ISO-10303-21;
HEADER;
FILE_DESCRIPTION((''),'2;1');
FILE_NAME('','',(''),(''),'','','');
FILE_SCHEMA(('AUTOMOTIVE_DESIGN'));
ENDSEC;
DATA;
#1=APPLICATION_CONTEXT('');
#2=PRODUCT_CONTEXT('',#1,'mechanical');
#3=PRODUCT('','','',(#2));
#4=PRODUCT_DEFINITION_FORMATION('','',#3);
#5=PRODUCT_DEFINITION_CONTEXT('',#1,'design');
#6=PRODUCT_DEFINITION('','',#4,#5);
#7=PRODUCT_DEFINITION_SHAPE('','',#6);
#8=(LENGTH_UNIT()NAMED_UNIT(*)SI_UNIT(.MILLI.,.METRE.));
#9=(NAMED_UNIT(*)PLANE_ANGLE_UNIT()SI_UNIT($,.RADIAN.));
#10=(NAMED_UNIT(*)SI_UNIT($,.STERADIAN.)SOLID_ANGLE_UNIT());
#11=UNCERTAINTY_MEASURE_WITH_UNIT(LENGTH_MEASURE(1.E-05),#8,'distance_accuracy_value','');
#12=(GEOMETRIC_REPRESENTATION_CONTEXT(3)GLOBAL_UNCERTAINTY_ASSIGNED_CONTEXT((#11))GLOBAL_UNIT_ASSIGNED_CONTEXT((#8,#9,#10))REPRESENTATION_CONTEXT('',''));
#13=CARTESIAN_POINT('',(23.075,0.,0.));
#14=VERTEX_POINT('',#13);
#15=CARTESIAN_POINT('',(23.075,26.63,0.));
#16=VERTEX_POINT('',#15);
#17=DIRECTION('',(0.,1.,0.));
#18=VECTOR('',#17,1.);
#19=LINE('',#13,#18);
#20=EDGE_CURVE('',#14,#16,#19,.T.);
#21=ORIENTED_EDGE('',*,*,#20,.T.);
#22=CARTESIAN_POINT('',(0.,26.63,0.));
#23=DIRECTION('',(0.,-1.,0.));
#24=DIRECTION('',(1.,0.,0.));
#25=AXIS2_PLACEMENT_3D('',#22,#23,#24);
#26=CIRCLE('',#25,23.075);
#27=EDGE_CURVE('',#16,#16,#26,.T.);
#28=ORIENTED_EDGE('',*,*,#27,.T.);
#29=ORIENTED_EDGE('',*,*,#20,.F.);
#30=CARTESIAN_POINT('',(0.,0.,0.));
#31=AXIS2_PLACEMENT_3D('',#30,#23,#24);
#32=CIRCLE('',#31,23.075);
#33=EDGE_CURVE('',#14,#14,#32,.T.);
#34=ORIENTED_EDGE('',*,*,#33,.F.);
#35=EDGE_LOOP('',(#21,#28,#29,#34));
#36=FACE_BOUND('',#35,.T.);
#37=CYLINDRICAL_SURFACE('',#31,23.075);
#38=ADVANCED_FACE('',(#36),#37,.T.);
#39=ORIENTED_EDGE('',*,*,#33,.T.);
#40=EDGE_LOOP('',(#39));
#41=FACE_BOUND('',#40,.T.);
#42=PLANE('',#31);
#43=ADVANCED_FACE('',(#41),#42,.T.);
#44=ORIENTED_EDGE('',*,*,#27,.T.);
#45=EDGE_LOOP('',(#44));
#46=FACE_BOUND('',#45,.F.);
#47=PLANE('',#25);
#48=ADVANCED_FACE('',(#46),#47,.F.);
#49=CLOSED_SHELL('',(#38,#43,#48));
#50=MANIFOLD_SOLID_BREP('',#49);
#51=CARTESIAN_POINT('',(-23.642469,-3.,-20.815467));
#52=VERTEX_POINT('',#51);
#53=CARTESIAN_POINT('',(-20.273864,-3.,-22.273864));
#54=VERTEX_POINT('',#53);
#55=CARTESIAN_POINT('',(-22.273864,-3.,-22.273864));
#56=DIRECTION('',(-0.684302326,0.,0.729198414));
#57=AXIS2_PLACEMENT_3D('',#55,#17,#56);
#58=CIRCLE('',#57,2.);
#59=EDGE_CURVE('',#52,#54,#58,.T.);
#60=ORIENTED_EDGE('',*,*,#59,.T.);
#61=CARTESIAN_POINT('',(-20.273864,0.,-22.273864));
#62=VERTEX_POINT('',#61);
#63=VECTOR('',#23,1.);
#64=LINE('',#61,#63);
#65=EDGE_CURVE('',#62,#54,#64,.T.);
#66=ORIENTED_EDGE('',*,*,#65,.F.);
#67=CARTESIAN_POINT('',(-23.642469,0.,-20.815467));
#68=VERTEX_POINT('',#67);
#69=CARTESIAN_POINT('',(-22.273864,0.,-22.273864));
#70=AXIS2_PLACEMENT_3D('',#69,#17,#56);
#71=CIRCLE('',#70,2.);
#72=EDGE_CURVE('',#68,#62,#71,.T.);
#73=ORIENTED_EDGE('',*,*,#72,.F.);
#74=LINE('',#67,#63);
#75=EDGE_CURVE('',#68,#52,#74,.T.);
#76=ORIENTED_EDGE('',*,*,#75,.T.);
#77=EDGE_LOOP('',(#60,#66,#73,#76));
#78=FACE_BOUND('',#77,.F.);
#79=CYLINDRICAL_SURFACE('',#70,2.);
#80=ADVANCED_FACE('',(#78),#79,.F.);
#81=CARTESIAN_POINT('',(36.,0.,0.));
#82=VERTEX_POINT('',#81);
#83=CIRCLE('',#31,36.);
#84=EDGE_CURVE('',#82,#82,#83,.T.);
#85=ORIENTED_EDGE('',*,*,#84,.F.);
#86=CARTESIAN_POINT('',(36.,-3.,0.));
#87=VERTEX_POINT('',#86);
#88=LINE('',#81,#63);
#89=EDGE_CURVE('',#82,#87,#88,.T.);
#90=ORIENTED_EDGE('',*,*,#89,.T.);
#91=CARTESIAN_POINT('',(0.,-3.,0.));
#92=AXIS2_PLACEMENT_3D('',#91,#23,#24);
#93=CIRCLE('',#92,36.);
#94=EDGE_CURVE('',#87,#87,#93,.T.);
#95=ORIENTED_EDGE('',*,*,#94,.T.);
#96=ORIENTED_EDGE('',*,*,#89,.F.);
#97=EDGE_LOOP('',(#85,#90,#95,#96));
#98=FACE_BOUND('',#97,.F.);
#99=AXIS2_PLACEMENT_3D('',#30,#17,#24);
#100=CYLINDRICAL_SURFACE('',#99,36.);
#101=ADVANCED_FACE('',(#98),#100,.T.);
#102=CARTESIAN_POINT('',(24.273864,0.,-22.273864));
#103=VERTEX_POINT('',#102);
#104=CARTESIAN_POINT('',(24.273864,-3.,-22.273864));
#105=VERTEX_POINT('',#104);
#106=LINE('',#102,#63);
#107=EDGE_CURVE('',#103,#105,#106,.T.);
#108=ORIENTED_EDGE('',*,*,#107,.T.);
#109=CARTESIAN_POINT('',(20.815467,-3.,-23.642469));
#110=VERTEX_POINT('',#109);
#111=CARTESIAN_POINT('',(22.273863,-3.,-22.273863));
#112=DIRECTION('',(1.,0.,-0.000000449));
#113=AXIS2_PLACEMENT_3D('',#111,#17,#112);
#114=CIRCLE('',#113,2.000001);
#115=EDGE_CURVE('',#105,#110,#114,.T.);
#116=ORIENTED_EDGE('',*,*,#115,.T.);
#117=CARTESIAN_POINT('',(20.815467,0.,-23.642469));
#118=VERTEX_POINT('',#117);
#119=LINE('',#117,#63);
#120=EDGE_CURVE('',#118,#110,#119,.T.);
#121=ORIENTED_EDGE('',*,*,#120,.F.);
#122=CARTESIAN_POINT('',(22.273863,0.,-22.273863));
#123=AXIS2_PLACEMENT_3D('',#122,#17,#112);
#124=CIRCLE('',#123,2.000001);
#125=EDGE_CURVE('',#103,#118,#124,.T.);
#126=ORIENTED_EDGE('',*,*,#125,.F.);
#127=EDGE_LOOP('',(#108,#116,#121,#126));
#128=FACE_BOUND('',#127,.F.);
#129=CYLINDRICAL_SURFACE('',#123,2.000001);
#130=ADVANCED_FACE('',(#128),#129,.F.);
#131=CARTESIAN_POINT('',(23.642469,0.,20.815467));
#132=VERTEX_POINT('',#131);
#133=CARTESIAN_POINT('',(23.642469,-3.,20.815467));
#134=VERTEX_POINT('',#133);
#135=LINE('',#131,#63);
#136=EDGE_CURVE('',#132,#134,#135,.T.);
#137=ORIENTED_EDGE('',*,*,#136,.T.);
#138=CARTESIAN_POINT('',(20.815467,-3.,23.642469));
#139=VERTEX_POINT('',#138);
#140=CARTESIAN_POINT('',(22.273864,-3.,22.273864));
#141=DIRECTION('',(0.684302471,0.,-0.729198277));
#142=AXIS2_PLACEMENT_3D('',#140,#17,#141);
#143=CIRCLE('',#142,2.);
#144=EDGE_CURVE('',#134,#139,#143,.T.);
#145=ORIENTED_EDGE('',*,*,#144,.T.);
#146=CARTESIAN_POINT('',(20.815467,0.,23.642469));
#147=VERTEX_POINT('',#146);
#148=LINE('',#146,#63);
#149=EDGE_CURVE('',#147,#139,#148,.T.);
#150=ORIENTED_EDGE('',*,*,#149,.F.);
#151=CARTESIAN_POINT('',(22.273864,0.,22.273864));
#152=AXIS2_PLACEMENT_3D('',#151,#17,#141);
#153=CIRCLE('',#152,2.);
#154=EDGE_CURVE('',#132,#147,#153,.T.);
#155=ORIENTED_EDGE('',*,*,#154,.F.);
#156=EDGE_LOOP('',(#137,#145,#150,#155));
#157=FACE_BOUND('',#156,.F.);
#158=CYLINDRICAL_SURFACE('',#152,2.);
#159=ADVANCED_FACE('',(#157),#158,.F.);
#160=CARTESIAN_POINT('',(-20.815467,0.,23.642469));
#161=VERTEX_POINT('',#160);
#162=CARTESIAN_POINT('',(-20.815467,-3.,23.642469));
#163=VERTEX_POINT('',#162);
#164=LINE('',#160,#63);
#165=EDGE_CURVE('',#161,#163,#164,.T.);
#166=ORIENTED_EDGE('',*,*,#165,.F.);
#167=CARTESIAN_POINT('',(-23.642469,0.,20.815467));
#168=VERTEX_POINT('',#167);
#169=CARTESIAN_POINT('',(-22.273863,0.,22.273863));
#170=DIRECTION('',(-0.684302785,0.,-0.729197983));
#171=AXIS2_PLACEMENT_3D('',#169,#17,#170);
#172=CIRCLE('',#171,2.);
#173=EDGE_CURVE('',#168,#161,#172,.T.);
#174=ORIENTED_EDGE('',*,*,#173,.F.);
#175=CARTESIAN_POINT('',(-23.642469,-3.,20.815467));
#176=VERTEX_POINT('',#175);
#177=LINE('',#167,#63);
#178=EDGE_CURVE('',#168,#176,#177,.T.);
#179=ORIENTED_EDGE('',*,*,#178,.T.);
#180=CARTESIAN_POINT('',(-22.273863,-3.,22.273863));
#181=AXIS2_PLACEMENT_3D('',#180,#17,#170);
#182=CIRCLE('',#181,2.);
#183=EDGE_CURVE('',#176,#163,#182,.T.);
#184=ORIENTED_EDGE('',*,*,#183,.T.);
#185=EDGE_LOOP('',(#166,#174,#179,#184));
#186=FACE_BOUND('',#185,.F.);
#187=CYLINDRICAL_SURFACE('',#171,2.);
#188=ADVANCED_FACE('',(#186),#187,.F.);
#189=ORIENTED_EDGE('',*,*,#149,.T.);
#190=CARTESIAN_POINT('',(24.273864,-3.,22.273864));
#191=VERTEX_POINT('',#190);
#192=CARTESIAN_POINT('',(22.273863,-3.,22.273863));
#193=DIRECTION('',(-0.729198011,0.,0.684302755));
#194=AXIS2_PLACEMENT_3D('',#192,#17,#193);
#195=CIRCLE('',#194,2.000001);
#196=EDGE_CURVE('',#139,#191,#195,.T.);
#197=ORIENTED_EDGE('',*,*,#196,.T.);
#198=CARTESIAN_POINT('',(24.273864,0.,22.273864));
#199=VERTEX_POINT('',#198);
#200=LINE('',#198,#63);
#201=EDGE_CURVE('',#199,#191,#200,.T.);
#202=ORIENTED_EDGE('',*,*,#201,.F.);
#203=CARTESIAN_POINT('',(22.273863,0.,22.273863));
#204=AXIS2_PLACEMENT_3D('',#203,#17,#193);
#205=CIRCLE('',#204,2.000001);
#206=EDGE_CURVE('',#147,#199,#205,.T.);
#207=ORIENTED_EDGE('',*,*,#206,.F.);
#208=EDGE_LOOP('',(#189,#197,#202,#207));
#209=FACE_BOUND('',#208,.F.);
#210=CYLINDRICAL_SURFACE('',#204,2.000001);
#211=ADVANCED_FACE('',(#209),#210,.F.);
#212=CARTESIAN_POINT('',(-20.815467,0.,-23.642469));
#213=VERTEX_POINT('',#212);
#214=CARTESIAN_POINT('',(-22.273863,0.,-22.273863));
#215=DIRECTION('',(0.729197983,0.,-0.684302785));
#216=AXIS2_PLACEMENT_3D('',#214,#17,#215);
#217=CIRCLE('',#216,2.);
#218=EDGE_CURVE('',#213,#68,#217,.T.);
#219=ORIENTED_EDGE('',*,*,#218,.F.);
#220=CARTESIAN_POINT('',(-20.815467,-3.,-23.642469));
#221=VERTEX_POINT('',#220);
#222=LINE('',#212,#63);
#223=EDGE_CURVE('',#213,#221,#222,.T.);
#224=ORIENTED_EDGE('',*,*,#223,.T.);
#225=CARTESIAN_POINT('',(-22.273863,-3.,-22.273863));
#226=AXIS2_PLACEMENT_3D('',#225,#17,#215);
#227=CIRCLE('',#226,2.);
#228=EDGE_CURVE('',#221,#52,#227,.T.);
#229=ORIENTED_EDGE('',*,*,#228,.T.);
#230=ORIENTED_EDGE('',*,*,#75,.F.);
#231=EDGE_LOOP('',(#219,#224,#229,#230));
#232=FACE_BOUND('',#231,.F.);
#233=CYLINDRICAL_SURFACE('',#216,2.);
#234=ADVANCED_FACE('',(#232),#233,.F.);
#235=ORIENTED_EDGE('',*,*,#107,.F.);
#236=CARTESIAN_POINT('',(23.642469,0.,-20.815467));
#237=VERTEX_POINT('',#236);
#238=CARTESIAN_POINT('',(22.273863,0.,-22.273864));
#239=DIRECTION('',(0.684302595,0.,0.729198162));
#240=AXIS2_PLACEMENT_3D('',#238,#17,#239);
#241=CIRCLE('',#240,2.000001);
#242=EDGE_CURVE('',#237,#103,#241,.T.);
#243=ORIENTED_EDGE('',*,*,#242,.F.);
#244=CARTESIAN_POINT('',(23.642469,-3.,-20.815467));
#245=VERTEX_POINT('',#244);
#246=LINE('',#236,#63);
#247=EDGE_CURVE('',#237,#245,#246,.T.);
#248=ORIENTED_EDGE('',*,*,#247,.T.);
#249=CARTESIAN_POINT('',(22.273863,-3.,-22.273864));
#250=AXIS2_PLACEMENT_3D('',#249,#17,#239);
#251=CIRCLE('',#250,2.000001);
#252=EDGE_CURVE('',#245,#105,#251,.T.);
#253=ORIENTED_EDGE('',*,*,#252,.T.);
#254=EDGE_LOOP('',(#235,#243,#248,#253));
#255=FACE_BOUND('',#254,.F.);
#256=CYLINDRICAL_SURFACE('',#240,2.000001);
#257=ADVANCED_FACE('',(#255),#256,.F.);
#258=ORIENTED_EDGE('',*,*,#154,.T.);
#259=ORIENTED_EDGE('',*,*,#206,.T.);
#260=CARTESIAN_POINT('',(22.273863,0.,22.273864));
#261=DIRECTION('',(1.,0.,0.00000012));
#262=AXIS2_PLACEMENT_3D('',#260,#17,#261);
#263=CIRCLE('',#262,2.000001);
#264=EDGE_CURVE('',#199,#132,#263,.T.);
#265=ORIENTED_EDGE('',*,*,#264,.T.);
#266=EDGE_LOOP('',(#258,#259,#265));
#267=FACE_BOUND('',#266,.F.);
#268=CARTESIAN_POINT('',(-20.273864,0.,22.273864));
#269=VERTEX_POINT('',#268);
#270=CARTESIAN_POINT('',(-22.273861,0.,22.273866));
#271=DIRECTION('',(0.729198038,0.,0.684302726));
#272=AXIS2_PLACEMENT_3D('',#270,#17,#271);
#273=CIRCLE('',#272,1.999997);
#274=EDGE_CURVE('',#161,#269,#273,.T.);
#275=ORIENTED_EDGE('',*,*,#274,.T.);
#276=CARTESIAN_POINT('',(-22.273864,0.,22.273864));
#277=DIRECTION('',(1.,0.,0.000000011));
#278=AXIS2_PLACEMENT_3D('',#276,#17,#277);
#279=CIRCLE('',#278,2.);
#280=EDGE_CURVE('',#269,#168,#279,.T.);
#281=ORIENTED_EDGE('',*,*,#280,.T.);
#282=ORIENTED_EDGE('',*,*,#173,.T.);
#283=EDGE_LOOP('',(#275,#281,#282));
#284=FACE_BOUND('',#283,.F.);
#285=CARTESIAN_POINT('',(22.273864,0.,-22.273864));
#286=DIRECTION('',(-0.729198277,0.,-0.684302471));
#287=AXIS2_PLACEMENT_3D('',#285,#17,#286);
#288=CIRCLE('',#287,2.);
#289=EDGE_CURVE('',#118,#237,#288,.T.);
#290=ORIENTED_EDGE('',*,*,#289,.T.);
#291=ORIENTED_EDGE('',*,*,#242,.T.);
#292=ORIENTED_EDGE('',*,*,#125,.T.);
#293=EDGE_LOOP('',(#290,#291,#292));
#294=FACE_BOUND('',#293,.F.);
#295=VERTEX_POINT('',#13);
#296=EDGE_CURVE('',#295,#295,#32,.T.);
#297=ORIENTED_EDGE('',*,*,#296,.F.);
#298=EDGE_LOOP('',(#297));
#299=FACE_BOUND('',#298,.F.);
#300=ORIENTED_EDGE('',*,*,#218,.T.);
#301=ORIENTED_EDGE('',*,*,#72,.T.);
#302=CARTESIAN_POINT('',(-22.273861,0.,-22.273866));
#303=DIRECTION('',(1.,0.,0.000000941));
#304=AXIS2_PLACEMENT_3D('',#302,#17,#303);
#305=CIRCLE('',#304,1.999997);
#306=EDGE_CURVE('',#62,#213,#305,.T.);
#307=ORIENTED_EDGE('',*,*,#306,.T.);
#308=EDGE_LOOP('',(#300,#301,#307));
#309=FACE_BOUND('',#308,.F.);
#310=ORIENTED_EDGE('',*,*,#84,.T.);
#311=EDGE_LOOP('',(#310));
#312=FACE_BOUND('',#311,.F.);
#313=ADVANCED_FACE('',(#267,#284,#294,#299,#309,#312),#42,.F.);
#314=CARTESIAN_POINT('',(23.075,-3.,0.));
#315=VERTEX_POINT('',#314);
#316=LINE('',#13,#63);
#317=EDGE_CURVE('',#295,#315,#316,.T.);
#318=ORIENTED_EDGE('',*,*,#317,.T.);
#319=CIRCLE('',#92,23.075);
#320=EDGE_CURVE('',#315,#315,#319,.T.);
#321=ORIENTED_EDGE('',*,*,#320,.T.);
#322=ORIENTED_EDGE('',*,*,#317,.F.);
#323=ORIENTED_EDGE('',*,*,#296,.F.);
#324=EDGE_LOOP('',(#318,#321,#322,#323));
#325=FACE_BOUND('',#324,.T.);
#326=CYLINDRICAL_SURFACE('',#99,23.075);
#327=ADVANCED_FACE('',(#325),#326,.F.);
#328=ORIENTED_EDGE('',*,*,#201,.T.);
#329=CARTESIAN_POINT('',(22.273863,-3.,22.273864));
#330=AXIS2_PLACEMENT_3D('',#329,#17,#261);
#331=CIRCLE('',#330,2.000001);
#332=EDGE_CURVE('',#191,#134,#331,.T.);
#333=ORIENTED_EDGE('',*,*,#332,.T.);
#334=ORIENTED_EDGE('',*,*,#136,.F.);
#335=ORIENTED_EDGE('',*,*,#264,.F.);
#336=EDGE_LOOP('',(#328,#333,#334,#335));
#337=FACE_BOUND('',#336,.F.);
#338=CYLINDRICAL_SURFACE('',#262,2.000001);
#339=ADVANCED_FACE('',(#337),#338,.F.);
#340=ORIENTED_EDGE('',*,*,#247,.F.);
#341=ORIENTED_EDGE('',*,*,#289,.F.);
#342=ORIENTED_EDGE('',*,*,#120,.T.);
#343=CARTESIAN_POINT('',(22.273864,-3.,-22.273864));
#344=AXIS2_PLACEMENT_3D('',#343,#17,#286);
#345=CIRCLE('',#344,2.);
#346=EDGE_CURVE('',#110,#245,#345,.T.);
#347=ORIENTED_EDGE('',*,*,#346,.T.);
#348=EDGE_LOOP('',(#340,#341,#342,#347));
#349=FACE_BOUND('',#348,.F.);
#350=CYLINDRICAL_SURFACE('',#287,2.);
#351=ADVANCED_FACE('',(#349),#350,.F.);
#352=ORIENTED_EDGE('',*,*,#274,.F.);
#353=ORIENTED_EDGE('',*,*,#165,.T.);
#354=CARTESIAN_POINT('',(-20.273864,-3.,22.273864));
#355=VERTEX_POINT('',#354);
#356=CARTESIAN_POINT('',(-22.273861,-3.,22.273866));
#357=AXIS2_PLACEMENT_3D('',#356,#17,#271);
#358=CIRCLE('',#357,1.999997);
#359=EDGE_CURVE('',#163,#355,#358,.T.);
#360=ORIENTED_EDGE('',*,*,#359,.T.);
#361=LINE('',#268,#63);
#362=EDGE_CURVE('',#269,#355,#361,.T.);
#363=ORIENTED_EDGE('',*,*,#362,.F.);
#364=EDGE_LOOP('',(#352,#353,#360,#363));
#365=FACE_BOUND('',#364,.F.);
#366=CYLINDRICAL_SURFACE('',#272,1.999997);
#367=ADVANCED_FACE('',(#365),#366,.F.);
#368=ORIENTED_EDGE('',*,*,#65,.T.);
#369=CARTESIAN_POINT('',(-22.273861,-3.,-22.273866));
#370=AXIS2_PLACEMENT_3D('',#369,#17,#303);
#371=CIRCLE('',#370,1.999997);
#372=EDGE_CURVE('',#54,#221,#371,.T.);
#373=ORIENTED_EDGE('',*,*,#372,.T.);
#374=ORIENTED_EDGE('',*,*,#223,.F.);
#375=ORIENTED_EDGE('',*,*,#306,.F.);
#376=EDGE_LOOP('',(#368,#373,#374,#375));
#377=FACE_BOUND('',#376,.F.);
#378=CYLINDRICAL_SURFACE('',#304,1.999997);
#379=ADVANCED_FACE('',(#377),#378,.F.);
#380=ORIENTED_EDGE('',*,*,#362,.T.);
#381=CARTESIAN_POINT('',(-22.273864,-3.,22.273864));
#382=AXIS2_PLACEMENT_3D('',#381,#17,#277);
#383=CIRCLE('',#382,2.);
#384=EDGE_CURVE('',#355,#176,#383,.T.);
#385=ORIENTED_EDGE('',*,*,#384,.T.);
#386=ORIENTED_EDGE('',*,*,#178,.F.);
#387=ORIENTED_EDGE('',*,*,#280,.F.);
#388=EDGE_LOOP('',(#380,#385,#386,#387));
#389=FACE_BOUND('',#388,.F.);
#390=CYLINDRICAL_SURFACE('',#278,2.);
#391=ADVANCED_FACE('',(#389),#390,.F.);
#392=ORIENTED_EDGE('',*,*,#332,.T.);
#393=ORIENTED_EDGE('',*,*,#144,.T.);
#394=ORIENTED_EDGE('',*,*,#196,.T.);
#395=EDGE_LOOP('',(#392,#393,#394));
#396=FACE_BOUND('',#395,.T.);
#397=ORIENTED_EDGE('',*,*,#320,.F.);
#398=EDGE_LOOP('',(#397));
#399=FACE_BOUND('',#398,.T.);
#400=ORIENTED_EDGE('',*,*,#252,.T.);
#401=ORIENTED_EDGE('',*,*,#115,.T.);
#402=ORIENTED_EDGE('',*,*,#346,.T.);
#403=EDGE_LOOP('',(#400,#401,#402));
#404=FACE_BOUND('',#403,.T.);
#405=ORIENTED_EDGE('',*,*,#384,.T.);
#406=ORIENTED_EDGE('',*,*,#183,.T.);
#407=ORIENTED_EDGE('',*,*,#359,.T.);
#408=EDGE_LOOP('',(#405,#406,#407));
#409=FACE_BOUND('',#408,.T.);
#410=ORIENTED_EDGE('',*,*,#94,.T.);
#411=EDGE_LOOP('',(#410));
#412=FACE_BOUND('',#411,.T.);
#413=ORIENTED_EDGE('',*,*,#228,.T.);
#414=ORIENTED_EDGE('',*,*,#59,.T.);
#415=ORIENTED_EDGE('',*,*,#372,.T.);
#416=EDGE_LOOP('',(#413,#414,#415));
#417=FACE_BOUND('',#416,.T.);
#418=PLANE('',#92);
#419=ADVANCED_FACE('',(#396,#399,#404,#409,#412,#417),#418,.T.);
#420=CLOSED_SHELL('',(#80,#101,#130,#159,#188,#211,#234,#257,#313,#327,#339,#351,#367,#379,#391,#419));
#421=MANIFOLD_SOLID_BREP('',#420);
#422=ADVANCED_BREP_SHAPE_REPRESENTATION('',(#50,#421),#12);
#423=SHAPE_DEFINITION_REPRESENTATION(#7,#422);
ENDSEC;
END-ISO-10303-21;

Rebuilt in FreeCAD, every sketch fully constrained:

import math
import FreeCAD as App
import Part
import Sketcher
from FreeCAD import Vector
Q = App.Units.Quantity

doc = App.newDocument("Part")
body = doc.addObject("PartDesign::Body", "Body")

# Sketch on XZ plane
sketch1 = body.newObject("Sketcher::SketchObject", "Sketch")
sketch1.AttachmentSupport = (doc.getObject("XZ_Plane"), [""])
sketch1.MapMode = "FlatFace"
sketch1.addGeometry(Part.Circle(Vector(0, 0, 0), Vector(0, 0, 1), 36), False)
sketch1.addGeometry(Part.ArcOfCircle(Part.Circle(Vector(-22.273863, -22.273863, 0), Vector(0, 0, 1), 2), math.radians(133.1808), math.radians(316.8192)), False)
sketch1.addGeometry(Part.ArcOfCircle(Part.Circle(Vector(-22.273864, -22.273864, 0), Vector(0, 0, 1), 2), math.radians(-0.000001), math.radians(133.180764)), False)
sketch1.addGeometry(Part.ArcOfCircle(Part.Circle(Vector(-22.273861, -22.273866, 0), Vector(0, 0, 1), 1.999997), math.radians(-43.180795), math.radians(0.000054)), False)
sketch1.addGeometry(Part.ArcOfCircle(Part.Circle(Vector(22.273863, -22.273863, 0), Vector(0, 0, 1), 2.000001), math.radians(-136.819203), math.radians(-0.000026)), False)
sketch1.addGeometry(Part.ArcOfCircle(Part.Circle(Vector(22.273864, -22.273864, 0), Vector(0, 0, 1), 2), math.radians(46.819225), math.radians(223.180775)), False)
sketch1.addGeometry(Part.ArcOfCircle(Part.Circle(Vector(22.273863, -22.273864, 0), Vector(0, 0, 1), 2.000001), math.radians(-0.000007), math.radians(46.819215)), False)
sketch1.addGeometry(Part.Circle(Vector(0, 0, 0), Vector(0, 0, 1), 23.075), False)
sketch1.addGeometry(Part.ArcOfCircle(Part.Circle(Vector(-22.273863, 22.273863, 0), Vector(0, 0, 1), 2), math.radians(43.1808), math.radians(226.8192)), False)
sketch1.addGeometry(Part.ArcOfCircle(Part.Circle(Vector(-22.273861, 22.273866, 0), Vector(0, 0, 1), 1.999997), math.radians(-0.000054), math.radians(43.180795)), False)
sketch1.addGeometry(Part.ArcOfCircle(Part.Circle(Vector(-22.273864, 22.273864, 0), Vector(0, 0, 1), 2), math.radians(-133.180764), math.radians(0.000001)), False)
sketch1.addGeometry(Part.ArcOfCircle(Part.Circle(Vector(22.273863, 22.273864, 0), Vector(0, 0, 1), 2.000001), math.radians(-46.819215), math.radians(0.000007)), False)
sketch1.addGeometry(Part.ArcOfCircle(Part.Circle(Vector(22.273864, 22.273864, 0), Vector(0, 0, 1), 2), math.radians(136.819225), math.radians(313.180775)), False)
sketch1.addGeometry(Part.ArcOfCircle(Part.Circle(Vector(22.273863, 22.273863, 0), Vector(0, 0, 1), 2.000001), math.radians(0.000026), math.radians(136.819203)), False)
sketch1.addConstraint(Sketcher.Constraint("Tangent", 1, 1, 2, 2))
sketch1.addConstraint(Sketcher.Constraint("Tangent", 2, 1, 3, 2))
sketch1.addConstraint(Sketcher.Constraint("Tangent", 3, 1, 1, 2))
sketch1.addConstraint(Sketcher.Constraint("Tangent", 4, 1, 5, 2))
sketch1.addConstraint(Sketcher.Constraint("Tangent", 5, 1, 6, 2))
sketch1.addConstraint(Sketcher.Constraint("Tangent", 6, 1, 4, 2))
sketch1.addConstraint(Sketcher.Constraint("Tangent", 8, 1, 9, 2))
sketch1.addConstraint(Sketcher.Constraint("Tangent", 9, 1, 10, 2))
sketch1.addConstraint(Sketcher.Constraint("Tangent", 10, 1, 8, 2))
sketch1.addConstraint(Sketcher.Constraint("Tangent", 11, 1, 12, 2))
sketch1.addConstraint(Sketcher.Constraint("Tangent", 12, 1, 13, 2))
sketch1.addConstraint(Sketcher.Constraint("Tangent", 13, 1, 11, 2))
sketch1.addConstraint(Sketcher.Constraint("Coincident", 0, 3, -1, 1))
sketch1.addConstraint(Sketcher.Constraint("Coincident", 7, 3, -1, 1))
sketch1.addConstraint(Sketcher.Constraint("Equal", 2, 4))
sketch1.addConstraint(Sketcher.Constraint("Equal", 6, 8))
sketch1.addConstraint(Sketcher.Constraint("Equal", 10, 11))
sketch1.addConstraint(Sketcher.Constraint("Symmetric", 4, 3, 8, 3, -1, 1))
sketch1.addConstraint(Sketcher.Constraint("Symmetric", 1, 3, 11, 3, -1, 1))
sketch1.addConstraint(Sketcher.Constraint("Symmetric", 1, 3, 4, 3, -2))
sketch1.addConstraint(Sketcher.Constraint("Horizontal", 6, 3, 2, 1))
sketch1.addConstraint(Sketcher.Constraint("Horizontal", 3, 1, 4, 1))
sketch1.addConstraint(Sketcher.Constraint("Horizontal", 1, 1, 5, 1))
sketch1.addConstraint(Sketcher.Constraint("Horizontal", 2, 1, 6, 1))
sketch1.addConstraint(Sketcher.Constraint("Horizontal", 13, 3, 9, 1))
sketch1.addConstraint(Sketcher.Constraint("Horizontal", 10, 1, 11, 1))
sketch1.addConstraint(Sketcher.Constraint("Horizontal", 8, 1, 12, 1))
sketch1.addConstraint(Sketcher.Constraint("Horizontal", 9, 1, 13, 1))
sketch1.addConstraint(Sketcher.Constraint("Vertical", 3, 1, 8, 1))
sketch1.addConstraint(Sketcher.Constraint("Vertical", 1, 1, 10, 1))
sketch1.addConstraint(Sketcher.Constraint("Diameter", 0, Q("72 mm")))
sketch1.addConstraint(Sketcher.Constraint("Radius", 1, Q("2 mm")))
sketch1.addConstraint(Sketcher.Constraint("Diameter", 7, Q("46.15 mm")))
sketch1.addConstraint(Sketcher.Constraint("DistanceX", 1, 1, 3, 1, Q("2.827002 mm")))
sketch1.addConstraint(Sketcher.Constraint("DistanceY", 3, 1, 1, 1, Q("2.827002 mm")))
sketch1.addConstraint(Sketcher.Constraint("DistanceX", 3, 3, -1, 1, Q("22.273861 mm")))
sketch1.addConstraint(Sketcher.Constraint("DistanceY", 3, 1, -1, 1, Q("23.642469 mm")))
pad1 = body.newObject("PartDesign::Pad", "Pad")
pad1.Profile = sketch1
pad1.Length = 3
body2 = doc.addObject("PartDesign::Body", "Body001")

# Sketch on XZ plane
sketch2 = body2.newObject("Sketcher::SketchObject", "Sketch001")
sketch2.AttachmentSupport = (doc.getObject("XZ_Plane001"), [""])
sketch2.MapMode = "FlatFace"
sketch2.addGeometry(Part.Circle(Vector(0, 0, 0), Vector(0, 0, 1), 23.075), False)
sketch2.addConstraint(Sketcher.Constraint("Coincident", 0, 3, -1, 1))
sketch2.addConstraint(Sketcher.Constraint("Diameter", 0, Q("46.15 mm")))
pad2 = body2.newObject("PartDesign::Pad", "Pad001")
pad2.Profile = sketch2
pad2.Length = 26.63
pad2.Reversed = True

doc.recompute()
